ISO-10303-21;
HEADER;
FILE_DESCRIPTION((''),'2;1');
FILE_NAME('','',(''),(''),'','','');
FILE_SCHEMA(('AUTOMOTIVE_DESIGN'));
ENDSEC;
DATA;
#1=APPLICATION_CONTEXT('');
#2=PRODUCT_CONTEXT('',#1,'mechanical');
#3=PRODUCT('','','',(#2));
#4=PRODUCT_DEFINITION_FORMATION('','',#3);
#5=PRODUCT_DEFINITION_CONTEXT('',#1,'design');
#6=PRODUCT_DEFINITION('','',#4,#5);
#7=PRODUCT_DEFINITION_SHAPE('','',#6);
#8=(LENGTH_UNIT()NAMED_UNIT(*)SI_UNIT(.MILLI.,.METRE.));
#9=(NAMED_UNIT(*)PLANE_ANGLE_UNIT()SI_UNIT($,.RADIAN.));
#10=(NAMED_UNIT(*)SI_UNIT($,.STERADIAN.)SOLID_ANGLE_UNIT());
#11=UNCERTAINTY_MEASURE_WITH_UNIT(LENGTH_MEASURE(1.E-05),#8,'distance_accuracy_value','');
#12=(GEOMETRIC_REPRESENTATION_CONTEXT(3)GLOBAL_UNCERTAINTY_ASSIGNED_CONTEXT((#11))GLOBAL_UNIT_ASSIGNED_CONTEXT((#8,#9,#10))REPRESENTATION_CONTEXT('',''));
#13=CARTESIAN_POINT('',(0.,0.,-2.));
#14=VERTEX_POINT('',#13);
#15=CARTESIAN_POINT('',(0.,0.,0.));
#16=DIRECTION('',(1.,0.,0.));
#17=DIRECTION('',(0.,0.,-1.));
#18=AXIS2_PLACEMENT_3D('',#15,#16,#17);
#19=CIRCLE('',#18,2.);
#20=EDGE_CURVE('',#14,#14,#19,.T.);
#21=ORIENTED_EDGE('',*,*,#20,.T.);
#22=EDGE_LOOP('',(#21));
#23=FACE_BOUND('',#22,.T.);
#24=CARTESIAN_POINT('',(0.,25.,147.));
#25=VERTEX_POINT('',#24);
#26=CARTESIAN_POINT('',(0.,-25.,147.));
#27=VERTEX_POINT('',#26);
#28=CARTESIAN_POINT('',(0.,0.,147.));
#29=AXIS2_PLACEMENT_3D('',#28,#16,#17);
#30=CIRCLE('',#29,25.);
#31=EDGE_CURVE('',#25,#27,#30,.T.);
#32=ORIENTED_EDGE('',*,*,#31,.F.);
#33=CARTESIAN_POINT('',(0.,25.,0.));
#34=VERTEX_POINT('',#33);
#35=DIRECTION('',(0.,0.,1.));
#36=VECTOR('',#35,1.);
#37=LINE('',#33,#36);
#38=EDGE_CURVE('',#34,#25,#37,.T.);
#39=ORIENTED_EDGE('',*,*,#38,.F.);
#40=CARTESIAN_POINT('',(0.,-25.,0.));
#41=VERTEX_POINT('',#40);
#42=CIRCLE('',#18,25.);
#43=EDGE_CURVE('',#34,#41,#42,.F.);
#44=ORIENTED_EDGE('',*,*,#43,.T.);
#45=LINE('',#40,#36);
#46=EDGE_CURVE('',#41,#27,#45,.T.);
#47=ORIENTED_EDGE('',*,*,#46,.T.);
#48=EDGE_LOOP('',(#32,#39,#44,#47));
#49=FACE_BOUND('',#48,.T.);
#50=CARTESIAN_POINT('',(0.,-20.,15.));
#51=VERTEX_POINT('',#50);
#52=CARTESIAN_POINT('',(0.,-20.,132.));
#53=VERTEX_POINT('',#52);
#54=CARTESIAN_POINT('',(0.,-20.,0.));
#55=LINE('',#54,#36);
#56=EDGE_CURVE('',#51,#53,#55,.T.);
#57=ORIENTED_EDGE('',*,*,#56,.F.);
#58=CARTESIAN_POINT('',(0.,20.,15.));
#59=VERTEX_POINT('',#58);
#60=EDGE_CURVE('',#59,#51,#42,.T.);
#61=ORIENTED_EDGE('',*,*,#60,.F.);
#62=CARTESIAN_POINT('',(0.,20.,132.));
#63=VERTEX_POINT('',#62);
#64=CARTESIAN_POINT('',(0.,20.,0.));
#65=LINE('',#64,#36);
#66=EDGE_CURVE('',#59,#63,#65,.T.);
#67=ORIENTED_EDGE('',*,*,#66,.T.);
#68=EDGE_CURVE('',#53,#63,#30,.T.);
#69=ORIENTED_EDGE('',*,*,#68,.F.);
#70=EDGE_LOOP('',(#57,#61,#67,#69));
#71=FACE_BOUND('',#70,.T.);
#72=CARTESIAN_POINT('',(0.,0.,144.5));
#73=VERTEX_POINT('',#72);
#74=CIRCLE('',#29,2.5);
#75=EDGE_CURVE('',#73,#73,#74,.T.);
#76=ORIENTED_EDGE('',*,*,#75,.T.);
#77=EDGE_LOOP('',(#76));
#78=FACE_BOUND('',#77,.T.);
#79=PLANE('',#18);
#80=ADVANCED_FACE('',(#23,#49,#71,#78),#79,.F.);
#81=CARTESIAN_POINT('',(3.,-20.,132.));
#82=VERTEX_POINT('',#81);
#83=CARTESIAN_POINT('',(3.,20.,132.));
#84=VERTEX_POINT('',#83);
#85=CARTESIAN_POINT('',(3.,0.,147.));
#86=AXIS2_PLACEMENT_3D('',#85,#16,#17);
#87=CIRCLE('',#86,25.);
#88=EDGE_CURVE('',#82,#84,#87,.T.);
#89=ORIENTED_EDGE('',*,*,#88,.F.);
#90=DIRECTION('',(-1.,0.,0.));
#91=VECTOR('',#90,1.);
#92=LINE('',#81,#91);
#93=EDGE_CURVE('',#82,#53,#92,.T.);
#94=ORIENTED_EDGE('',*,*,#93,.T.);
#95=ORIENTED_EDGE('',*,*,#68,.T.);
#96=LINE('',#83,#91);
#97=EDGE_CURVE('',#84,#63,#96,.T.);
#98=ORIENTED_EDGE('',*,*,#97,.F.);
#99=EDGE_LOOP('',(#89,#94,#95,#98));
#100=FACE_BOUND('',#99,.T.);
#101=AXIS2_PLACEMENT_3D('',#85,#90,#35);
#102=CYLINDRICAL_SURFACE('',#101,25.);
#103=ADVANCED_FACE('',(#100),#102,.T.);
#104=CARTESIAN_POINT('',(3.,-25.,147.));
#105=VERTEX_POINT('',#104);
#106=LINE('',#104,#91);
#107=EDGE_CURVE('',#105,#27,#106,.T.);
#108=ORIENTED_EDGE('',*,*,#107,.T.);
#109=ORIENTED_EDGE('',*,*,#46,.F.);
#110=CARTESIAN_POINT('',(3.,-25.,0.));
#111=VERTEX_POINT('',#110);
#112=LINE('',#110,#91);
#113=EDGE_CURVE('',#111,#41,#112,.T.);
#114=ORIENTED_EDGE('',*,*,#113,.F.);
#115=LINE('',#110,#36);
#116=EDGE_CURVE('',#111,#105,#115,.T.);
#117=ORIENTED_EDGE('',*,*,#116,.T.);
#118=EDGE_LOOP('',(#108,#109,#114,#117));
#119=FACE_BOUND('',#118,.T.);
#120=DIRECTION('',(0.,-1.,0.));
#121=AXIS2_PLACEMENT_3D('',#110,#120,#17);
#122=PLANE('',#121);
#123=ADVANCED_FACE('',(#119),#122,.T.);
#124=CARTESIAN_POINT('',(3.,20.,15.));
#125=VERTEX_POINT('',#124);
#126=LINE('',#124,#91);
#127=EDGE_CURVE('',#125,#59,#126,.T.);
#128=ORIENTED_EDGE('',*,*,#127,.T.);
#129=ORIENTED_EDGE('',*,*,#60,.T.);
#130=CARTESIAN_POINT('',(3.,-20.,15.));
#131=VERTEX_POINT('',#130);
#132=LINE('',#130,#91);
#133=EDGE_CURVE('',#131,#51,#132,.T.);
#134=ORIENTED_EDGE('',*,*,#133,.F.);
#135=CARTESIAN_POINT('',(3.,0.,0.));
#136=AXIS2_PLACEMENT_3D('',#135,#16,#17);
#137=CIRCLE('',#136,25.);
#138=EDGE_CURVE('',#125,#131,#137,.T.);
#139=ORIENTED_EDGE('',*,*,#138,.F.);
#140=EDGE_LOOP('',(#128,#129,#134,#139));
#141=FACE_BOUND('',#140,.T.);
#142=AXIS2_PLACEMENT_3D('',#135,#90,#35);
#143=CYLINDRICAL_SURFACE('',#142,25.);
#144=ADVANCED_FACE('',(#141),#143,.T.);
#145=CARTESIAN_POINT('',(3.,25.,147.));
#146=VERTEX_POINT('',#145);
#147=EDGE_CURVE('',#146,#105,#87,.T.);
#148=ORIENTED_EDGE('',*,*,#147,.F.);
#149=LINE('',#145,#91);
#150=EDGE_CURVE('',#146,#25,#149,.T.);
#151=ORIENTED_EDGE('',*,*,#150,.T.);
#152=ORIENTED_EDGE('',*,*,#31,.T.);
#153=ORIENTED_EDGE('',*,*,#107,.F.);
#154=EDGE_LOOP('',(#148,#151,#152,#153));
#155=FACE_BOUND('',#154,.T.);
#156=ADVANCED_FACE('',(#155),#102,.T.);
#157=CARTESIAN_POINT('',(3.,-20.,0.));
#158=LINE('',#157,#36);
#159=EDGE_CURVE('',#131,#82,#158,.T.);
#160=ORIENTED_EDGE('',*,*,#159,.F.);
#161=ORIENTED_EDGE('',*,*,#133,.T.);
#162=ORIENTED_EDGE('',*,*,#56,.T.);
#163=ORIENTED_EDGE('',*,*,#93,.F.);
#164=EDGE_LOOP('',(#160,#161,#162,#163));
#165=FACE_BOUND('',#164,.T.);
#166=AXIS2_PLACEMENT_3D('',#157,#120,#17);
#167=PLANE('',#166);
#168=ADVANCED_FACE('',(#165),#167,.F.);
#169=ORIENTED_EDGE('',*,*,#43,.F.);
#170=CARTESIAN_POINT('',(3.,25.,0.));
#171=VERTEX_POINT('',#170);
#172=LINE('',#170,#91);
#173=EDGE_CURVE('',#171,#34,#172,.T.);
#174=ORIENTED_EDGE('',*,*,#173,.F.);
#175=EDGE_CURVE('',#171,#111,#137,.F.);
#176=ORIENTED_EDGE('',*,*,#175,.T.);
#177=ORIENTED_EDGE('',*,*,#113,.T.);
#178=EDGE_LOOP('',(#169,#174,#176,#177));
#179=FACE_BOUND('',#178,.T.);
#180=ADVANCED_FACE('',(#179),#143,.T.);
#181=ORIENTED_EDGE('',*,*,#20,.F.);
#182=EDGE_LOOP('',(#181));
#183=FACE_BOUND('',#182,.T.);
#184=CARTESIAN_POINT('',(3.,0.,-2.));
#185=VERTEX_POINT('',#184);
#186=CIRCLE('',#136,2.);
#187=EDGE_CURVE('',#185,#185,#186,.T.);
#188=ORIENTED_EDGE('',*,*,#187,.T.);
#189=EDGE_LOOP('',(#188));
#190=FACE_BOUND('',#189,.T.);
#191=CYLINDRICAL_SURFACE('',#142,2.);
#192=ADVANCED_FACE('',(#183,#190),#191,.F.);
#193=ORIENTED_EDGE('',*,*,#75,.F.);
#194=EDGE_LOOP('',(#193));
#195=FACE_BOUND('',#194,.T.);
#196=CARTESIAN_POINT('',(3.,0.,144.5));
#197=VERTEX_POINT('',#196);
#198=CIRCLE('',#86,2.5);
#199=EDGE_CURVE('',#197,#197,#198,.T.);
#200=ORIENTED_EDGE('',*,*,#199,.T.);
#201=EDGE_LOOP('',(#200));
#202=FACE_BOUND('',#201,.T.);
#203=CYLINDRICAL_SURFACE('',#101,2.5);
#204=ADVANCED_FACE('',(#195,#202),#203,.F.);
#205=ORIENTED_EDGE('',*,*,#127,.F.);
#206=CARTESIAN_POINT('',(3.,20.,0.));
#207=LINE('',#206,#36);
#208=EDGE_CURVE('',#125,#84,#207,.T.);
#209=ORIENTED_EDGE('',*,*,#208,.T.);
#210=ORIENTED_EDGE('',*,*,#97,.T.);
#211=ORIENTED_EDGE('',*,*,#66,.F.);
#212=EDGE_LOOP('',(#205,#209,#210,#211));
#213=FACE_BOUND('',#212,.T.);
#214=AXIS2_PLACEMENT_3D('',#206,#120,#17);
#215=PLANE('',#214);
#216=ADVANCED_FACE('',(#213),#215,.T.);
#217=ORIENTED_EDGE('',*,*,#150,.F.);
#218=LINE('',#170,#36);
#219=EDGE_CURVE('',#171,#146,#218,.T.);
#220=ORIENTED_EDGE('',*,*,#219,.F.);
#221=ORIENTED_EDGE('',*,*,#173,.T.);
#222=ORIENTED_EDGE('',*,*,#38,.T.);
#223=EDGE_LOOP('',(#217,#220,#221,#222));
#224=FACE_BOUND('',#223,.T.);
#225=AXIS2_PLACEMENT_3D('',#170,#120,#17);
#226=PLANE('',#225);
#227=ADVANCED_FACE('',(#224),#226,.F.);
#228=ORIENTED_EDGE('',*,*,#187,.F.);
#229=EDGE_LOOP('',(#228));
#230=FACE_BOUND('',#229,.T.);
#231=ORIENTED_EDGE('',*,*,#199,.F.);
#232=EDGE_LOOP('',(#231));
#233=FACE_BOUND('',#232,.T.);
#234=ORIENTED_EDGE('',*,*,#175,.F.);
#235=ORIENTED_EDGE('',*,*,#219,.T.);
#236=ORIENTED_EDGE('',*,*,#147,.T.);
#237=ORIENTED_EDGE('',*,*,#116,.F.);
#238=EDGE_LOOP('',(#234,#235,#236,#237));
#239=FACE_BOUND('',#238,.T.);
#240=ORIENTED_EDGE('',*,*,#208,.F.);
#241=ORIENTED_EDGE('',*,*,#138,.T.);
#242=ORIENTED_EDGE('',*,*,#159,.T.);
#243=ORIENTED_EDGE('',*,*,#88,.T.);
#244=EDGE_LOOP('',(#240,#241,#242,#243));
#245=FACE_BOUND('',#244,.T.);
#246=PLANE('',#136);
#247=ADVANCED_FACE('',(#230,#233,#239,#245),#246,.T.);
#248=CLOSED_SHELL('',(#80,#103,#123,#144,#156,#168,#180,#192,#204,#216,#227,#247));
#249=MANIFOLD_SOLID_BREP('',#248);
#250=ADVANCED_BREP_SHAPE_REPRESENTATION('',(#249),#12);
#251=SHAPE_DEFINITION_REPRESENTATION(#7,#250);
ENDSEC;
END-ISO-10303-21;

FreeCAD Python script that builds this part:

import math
import FreeCAD as App
import Part
import Sketcher
from FreeCAD import Vector

doc = App.newDocument("Part")
params = doc.addObject("Spreadsheet::Sheet", "Params")
for row, (alias, value) in enumerate([
    ("sketch1_diameter", "5 mm"),
    ("sketch1_diameter2", "4 mm"),
    ("sketch1_radius", "25 mm"),
    ("sketch1_height", "147 mm"),
    ("sketch1_height2", "117 mm"),
    ("pad1_length", "3 mm"),
], start=1):
    params.set(f"A{row}", alias)
    params.set(f"B{row}", "=" + value)
    params.setAlias(f"B{row}", alias)

body = doc.addObject("PartDesign::Body", "Body")

sketch1 = doc.addObject("Sketcher::SketchObject", "Sketch")
body.addObject(sketch1)
sketch1.AttachmentSupport = (doc.YZ_Plane, [""])
sketch1.MapMode = "FlatFace"
sketch1.addGeometry([
    Part.LineSegment(Vector(25, 0, 0), Vector(25, 147, 0)),
    Part.ArcOfCircle(Part.Circle(Vector(0, 147, 0), Vector(0, 0, 1), 25), math.radians(0), math.radians(180)),
    Part.LineSegment(Vector(-25, 147, 0), Vector(-25, 0, 0)),
    Part.ArcOfCircle(Part.Circle(Vector(0, 0, 0), Vector(0, 0, 1), 25), math.radians(180), math.radians(360)),
    Part.Circle(Vector(0, 147, 0), Vector(0, 0, 1), 2.5),
    Part.ArcOfCircle(Part.Circle(Vector(0, 147, 0), Vector(0, 0, 1), 25), math.radians(-143.130102), math.radians(-36.869898)),
    Part.LineSegment(Vector(20, 132, 0), Vector(20, 15, 0)),
    Part.ArcOfCircle(Part.Circle(Vector(0, 0, 0), Vector(0, 0, 1), 25), math.radians(36.869898), math.radians(143.130102)),
    Part.LineSegment(Vector(-20, 15, 0), Vector(-20, 132, 0)),
    Part.Circle(Vector(0, 0, 0), Vector(0, 0, 1), 2),
], False)
sketch1.addConstraint([
    Sketcher.Constraint("Tangent", 0, 2, 1, 1),
    Sketcher.Constraint("Tangent", 1, 2, 2, 1),
    Sketcher.Constraint("Tangent", 2, 2, 3, 1),
    Sketcher.Constraint("Tangent", 3, 2, 0, 1),
    Sketcher.Constraint("Coincident", 5, 2, 6, 1),
    Sketcher.Constraint("Coincident", 6, 2, 7, 1),
    Sketcher.Constraint("Coincident", 7, 2, 8, 1),
    Sketcher.Constraint("Coincident", 8, 2, 5, 1),
    Sketcher.Constraint("Vertical", 0),
    Sketcher.Constraint("Vertical", 2),
    Sketcher.Constraint("Vertical", 6),
    Sketcher.Constraint("Vertical", 8),
    Sketcher.Constraint("Coincident", 3, 3, -1, 1),
    Sketcher.Constraint("Coincident", 7, 3, -1, 1),
    Sketcher.Constraint("Coincident", 9, 3, -1, 1),
    Sketcher.Constraint("Coincident", 4, 3, 1, 3),
    Sketcher.Constraint("Coincident", 5, 3, 1, 3),
    Sketcher.Constraint("Equal", 3, 5),
    Sketcher.Constraint("Equal", 5, 7),
    Sketcher.Constraint("Horizontal", 6, 2, 7, 2),
    Sketcher.Constraint("Diameter", 4, 5.0),
    Sketcher.Constraint("Diameter", 9, 4.0),
    Sketcher.Constraint("Radius", 1, 25.0),
    Sketcher.Constraint("DistanceY", 0, 1, 0, 2, 147.0),
    Sketcher.Constraint("DistanceY", 6, 2, 6, 1, 117.0),
])
sketch1.setExpression("Constraints[20]", "Params.sketch1_diameter")
sketch1.setExpression("Constraints[21]", "Params.sketch1_diameter2")
sketch1.setExpression("Constraints[22]", "Params.sketch1_radius")
sketch1.setExpression("Constraints[23]", "Params.sketch1_height")
sketch1.setExpression("Constraints[24]", "Params.sketch1_height2")
pad1 = doc.addObject("PartDesign::Pad", "Pad")
body.addObject(pad1)
pad1.Profile = sketch1
pad1.setExpression("Length", "Params.pad1_length")

doc.recompute()
